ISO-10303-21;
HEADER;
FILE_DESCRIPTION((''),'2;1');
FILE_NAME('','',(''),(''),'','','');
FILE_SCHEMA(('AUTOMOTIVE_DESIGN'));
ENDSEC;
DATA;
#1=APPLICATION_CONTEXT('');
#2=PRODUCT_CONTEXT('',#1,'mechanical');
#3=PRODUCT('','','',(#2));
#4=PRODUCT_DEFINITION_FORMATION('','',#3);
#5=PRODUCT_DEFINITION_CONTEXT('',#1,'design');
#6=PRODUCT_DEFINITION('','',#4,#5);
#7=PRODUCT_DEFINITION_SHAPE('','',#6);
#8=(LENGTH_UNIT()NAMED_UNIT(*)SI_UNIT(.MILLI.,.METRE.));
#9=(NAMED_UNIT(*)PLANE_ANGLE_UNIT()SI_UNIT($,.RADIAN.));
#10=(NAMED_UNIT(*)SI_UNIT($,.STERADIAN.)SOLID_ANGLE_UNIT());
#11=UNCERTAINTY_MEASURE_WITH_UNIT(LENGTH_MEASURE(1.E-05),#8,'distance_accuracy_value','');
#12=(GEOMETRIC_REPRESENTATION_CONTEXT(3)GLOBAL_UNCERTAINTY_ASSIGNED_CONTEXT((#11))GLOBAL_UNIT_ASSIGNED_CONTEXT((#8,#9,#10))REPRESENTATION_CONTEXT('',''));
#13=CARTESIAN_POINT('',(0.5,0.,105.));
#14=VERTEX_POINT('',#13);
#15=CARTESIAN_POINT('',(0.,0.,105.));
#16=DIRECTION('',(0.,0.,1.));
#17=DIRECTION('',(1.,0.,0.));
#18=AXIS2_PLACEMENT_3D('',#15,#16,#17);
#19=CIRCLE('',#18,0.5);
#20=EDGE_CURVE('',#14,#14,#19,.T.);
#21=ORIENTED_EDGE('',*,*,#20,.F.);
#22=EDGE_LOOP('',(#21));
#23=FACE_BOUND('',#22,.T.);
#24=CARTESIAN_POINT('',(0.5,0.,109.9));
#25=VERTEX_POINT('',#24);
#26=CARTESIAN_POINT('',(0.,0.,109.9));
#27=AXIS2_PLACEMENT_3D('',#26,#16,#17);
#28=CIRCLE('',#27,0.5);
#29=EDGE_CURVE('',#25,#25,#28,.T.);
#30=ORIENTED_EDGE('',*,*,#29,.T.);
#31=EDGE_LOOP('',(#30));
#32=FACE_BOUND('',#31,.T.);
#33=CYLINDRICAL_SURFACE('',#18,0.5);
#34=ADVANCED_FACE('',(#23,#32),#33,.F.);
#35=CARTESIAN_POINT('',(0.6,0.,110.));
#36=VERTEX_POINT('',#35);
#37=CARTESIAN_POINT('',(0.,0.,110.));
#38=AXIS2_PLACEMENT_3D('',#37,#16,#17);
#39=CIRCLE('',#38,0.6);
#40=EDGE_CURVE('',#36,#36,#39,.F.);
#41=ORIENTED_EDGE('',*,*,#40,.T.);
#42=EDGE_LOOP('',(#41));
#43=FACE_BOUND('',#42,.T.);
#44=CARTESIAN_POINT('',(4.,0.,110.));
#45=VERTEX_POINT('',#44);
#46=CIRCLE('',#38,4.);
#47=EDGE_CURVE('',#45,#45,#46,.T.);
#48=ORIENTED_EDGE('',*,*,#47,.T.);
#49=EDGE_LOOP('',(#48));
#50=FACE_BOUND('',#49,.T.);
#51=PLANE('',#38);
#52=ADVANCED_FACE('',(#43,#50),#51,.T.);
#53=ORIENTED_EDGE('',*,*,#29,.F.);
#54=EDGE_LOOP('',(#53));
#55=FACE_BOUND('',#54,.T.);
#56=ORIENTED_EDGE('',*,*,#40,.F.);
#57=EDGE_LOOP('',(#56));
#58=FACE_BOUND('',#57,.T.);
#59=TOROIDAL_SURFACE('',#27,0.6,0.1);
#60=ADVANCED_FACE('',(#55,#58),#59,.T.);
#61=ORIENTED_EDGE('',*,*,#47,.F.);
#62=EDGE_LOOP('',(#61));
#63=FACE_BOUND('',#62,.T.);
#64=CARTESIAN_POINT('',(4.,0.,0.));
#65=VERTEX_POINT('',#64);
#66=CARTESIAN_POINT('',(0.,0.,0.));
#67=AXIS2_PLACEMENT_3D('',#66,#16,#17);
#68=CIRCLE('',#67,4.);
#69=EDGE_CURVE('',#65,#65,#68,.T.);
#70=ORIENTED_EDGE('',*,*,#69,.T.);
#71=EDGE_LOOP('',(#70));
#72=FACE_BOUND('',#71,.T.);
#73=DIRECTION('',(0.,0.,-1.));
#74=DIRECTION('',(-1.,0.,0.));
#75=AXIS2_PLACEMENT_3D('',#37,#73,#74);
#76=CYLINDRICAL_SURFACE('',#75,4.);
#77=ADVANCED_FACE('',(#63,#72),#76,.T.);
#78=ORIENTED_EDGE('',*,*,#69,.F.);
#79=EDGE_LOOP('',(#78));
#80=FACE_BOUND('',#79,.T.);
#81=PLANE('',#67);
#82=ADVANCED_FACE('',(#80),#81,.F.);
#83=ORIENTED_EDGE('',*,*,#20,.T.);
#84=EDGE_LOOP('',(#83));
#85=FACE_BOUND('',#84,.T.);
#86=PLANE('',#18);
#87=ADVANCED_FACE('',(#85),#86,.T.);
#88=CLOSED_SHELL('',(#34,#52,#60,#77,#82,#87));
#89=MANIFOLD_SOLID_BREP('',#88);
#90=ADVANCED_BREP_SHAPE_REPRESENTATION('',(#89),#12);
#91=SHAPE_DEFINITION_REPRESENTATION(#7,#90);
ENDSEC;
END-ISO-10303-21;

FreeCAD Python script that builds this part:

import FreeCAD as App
import Part
import Sketcher
Q = App.Units.Quantity


def edges_at(feature, points):
    """Names of the edges that pass closest to the given points."""
    edges = feature.Shape.Edges
    near = lambda p: min(range(len(edges)), key=lambda i: edges[i].distToShape(Part.Vertex(*p))[0])
    return sorted({f"Edge{near(p) + 1}" for p in points})

doc = App.newDocument("Part")
params = doc.addObject("Spreadsheet::Sheet", "Params")
for row, (alias, value) in enumerate([
    ("sketch1_diameter", "8 mm"),
    ("pad1_length", "110 mm"),
    ("sketch2_diameter", "1 mm"),
    ("pocket1_length", "5 mm"),
    ("fillet_radius", "0.1 mm"),
], start=1):
    params.set(f"A{row}", alias)
    params.set(f"B{row}", "=" + value)
    params.setAlias(f"B{row}", alias)

body = doc.addObject("PartDesign::Body", "Body")

# Sketch on XY plane
sketch1 = body.newObject("Sketcher::SketchObject", "Sketch")
sketch1.AttachmentSupport = (doc.getObject("XY_Plane"), [""])
sketch1.MapMode = "FlatFace"
sketch1.addGeometry(Part.Circle(App.Vector(0, 0, 0), App.Vector(0, 0, 1), 4), False)
sketch1.addConstraint([
    Sketcher.Constraint("Coincident", 0, 3, -1, 1),
    Sketcher.Constraint("Diameter", 0, Q("8 mm")),
])
sketch1.setExpression("Constraints[1]", "Params.sketch1_diameter")
pad1 = body.newObject("PartDesign::Pad", "Pad")
pad1.Profile = sketch1
pad1.setExpression("Length", "Params.pad1_length")

# Sketch on XY plane
sketch2 = body.newObject("Sketcher::SketchObject", "Sketch001")
sketch2.AttachmentSupport = (doc.getObject("XY_Plane"), [""])
sketch2.MapMode = "FlatFace"
sketch2.AttachmentOffset = App.Placement(App.Vector(0, 0, 110), App.Rotation())
sketch2.addGeometry(Part.Circle(App.Vector(0, 0, 0), App.Vector(0, 0, 1), 0.5), False)
sketch2.addConstraint([
    Sketcher.Constraint("Coincident", 0, 3, -1, 1),
    Sketcher.Constraint("Diameter", 0, Q("1 mm")),
])
sketch2.setExpression("Constraints[1]", "Params.sketch2_diameter")
pocket1 = body.newObject("PartDesign::Pocket", "Pocket")
pocket1.Profile = sketch2
pocket1.setExpression("Length", "Params.pocket1_length")
doc.recompute()

fillet = body.newObject("PartDesign::Fillet", "Fillet")
fillet.Base = (pocket1, edges_at(pocket1, [(-0.5, 0, 110)]))
fillet.setExpression("Radius", "Params.fillet_radius")

doc.recompute()
